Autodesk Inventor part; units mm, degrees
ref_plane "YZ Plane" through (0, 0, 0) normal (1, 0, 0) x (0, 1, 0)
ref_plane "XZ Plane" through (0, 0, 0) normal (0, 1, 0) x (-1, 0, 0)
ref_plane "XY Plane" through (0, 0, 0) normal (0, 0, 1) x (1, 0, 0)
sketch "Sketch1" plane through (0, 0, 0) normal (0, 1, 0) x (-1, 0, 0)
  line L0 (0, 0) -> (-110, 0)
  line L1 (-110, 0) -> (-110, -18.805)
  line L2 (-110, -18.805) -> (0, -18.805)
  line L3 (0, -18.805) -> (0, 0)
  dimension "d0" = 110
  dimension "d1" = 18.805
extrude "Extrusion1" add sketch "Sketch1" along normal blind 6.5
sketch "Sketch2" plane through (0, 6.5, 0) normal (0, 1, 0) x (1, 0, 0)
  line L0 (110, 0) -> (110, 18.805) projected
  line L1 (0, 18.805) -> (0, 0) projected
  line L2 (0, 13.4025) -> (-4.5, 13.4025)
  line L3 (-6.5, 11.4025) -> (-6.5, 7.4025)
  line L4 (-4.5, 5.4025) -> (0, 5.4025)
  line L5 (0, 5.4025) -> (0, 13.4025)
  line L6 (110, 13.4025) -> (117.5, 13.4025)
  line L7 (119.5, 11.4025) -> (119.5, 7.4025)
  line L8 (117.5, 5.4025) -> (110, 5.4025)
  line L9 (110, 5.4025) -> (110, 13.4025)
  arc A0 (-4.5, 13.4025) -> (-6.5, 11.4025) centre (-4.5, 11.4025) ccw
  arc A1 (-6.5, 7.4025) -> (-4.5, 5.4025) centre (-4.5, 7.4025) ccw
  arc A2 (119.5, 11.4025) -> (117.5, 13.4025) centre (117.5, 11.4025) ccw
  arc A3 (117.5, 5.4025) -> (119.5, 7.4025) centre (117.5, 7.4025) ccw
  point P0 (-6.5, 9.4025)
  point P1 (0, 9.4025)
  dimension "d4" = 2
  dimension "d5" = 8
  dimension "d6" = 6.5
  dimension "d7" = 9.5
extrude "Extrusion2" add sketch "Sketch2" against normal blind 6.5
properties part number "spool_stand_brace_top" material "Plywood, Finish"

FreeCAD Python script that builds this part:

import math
import FreeCAD as App
import Part
import Sketcher

V = App.Vector
Q = App.Units.Quantity

doc = App.newDocument("Part")
body = doc.addObject("PartDesign::Body", "Body")

# Sketch on XZ plane
sketch1 = doc.addObject("Sketcher::SketchObject", "Sketch")
body.addObject(sketch1)
sketch1.AttachmentSupport = (doc.XZ_Plane, [""])
sketch1.MapMode = "FlatFace"
sketch1.addGeometry(Part.LineSegment(V(0, -19, 0), V(0, 0, 0)), False)
sketch1.addGeometry(Part.LineSegment(V(0, 0, 0), V(110, 0, 0)), False)
sketch1.addGeometry(Part.LineSegment(V(110, 0, 0), V(110, -19, 0)), False)
sketch1.addGeometry(Part.LineSegment(V(110, -19, 0), V(0, -19, 0)), False)
sketch1.addConstraint(Sketcher.Constraint("Coincident", 0, 2, 1, 1))
sketch1.addConstraint(Sketcher.Constraint("Coincident", 1, 2, 2, 1))
sketch1.addConstraint(Sketcher.Constraint("Coincident", 2, 2, 3, 1))
sketch1.addConstraint(Sketcher.Constraint("Coincident", 3, 2, 0, 1))
sketch1.addConstraint(Sketcher.Constraint("Vertical", 0))
sketch1.addConstraint(Sketcher.Constraint("Horizontal", 1))
sketch1.addConstraint(Sketcher.Constraint("Vertical", 2))
sketch1.addConstraint(Sketcher.Constraint("Horizontal", 3))
sketch1.addConstraint(Sketcher.Constraint("Coincident", 0, 2, -1, 1))
sketch1.addConstraint(Sketcher.Constraint("DistanceX", 1, 1, 1, 2, Q("110 mm")))
sketch1.addConstraint(Sketcher.Constraint("DistanceY", 0, 1, 0, 2, Q("18.805 mm")))
pad1 = doc.addObject("PartDesign::Pad", "Pad")
body.addObject(pad1)
pad1.Profile = sketch1
pad1.Length = 6.5
pad1.Reversed = True

# Sketch on XZ plane
sketch2 = doc.addObject("Sketcher::SketchObject", "Sketch001")
body.addObject(sketch2)
sketch2.AttachmentSupport = (doc.XZ_Plane, [""])
sketch2.MapMode = "FlatFace"
sketch2.AttachmentOffset = App.Placement(V(0, 0, -6.5), App.Rotation())
sketch2.addGeometry(Part.LineSegment(V(110, -13.4, 0), V(110, -5.4, 0)), False)
sketch2.addGeometry(Part.LineSegment(V(110, -5.4, 0), V(117.5, -5.4, 0)), False)
sketch2.addGeometry(Part.ArcOfCircle(Part.Circle(V(117.5, -7.4, 0), V(0, 0, 1), 2), math.radians(0), math.radians(90)), False)
sketch2.addGeometry(Part.LineSegment(V(119.5, -7.4, 0), V(119.5, -11.4, 0)), False)
sketch2.addGeometry(Part.ArcOfCircle(Part.Circle(V(117.5, -11.4, 0), V(0, 0, 1), 2), math.radians(-90), math.radians(0)), False)
sketch2.addGeometry(Part.LineSegment(V(117.5, -13.4, 0), V(110, -13.4, 0)), False)
sketch2.addGeometry(Part.LineSegment(V(0, -5.4, 0), V(0, -13.4, 0)), False)
sketch2.addGeometry(Part.LineSegment(V(0, -13.4, 0), V(-4.5, -13.4, 0)), False)
sketch2.addGeometry(Part.ArcOfCircle(Part.Circle(V(-4.5, -11.4, 0), V(0, 0, 1), 2), math.radians(180), math.radians(270)), False)
sketch2.addGeometry(Part.LineSegment(V(-6.5, -11.4, 0), V(-6.5, -7.4, 0)), False)
sketch2.addGeometry(Part.ArcOfCircle(Part.Circle(V(-4.5, -7.4, 0), V(0, 0, 1), 2), math.radians(90), math.radians(180)), False)
sketch2.addGeometry(Part.LineSegment(V(-4.5, -5.4, 0), V(0, -5.4, 0)), False)
sketch2.addConstraint(Sketcher.Constraint("Coincident", 0, 2, 1, 1))
sketch2.addConstraint(Sketcher.Constraint("Tangent", 1, 2, 2, 2))
sketch2.addConstraint(Sketcher.Constraint("Tangent", 2, 1, 3, 1))
sketch2.addConstraint(Sketcher.Constraint("Tangent", 3, 2, 4, 2))
sketch2.addConstraint(Sketcher.Constraint("Tangent", 4, 1, 5, 1))
sketch2.addConstraint(Sketcher.Constraint("Coincident", 5, 2, 0, 1))
sketch2.addConstraint(Sketcher.Constraint("Coincident", 6, 2, 7, 1))
sketch2.addConstraint(Sketcher.Constraint("Tangent", 7, 2, 8, 2))
sketch2.addConstraint(Sketcher.Constraint("Tangent", 8, 1, 9, 1))
sketch2.addConstraint(Sketcher.Constraint("Tangent", 9, 2, 10, 2))
sketch2.addConstraint(Sketcher.Constraint("Tangent", 10, 1, 11, 1))
sketch2.addConstraint(Sketcher.Constraint("Coincident", 11, 2, 6, 1))
sketch2.addConstraint(Sketcher.Constraint("Vertical", 0))
sketch2.addConstraint(Sketcher.Constraint("Horizontal", 1))
sketch2.addConstraint(Sketcher.Constraint("Vertical", 3))
sketch2.addConstraint(Sketcher.Constraint("Horizontal", 5))
sketch2.addConstraint(Sketcher.Constraint("Vertical", 6))
sketch2.addConstraint(Sketcher.Constraint("Horizontal", 7))
sketch2.addConstraint(Sketcher.Constraint("Vertical", 9))
sketch2.addConstraint(Sketcher.Constraint("Horizontal", 11))
sketch2.addConstraint(Sketcher.Constraint("Equal", 2, 4))
sketch2.addConstraint(Sketcher.Constraint("Equal", 4, 8))
sketch2.addConstraint(Sketcher.Constraint("Equal", 8, 10))
sketch2.addConstraint(Sketcher.Constraint("PointOnObject", 6, 2, -2))
sketch2.addConstraint(Sketcher.Constraint("Horizontal", 4, 3, 8, 3))
sketch2.addConstraint(Sketcher.Constraint("Horizontal", 2, 3, 10, 3))
sketch2.addConstraint(Sketcher.Constraint("Radius", 2, Q("2 mm")))
sketch2.addConstraint(Sketcher.Constraint("DistanceY", 0, 1, 0, 2, Q("8 mm")))
sketch2.addConstraint(Sketcher.Constraint("DistanceX", 8, 1, -1, 1, Q("6.5 mm")))
sketch2.addConstraint(Sketcher.Constraint("DistanceX", 0, 2, 2, 1, Q("9.5 mm")))
sketch2.addConstraint(Sketcher.Constraint("DistanceX", -1, 1, 0, 2, Q("110 mm")))
sketch2.addConstraint(Sketcher.Constraint("DistanceY", 2, 3, -1, 1, Q("7.4025 mm")))
pad2 = doc.addObject("PartDesign::Pad", "Pad001")
body.addObject(pad2)
pad2.Profile = sketch2
pad2.Length = 6.5

doc.recompute()
